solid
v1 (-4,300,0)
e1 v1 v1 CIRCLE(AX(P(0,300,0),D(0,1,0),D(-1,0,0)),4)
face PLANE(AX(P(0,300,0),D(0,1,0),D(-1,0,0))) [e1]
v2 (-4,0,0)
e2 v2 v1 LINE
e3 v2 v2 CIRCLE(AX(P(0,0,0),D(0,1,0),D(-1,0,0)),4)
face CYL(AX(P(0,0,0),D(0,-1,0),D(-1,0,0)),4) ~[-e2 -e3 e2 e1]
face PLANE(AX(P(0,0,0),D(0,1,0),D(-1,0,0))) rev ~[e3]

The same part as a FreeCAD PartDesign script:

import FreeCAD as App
import Part
import Sketcher
from FreeCAD import Vector
Q = App.Units.Quantity

doc = App.newDocument("Part")
body = doc.addObject("PartDesign::Body", "Body")

sketch1 = body.newObject("Sketcher::SketchObject", "Sketch")
sketch1.AttachmentSupport = (doc.getObject("XZ_Plane"), [""])
sketch1.MapMode = "FlatFace"
sketch1.addGeometry(Part.Circle(Vector(0, 0, 0), Vector(0, 0, 1), 4), False)
sketch1.addConstraint(Sketcher.Constraint("Coincident", 0, 3, -1, 1))
sketch1.addConstraint(Sketcher.Constraint("Diameter", 0, Q("8 mm")))
pad1 = body.newObject("PartDesign::Pad", "Pad")
pad1.Profile = sketch1
pad1.Length = 300
pad1.Reversed = True

doc.recompute()
